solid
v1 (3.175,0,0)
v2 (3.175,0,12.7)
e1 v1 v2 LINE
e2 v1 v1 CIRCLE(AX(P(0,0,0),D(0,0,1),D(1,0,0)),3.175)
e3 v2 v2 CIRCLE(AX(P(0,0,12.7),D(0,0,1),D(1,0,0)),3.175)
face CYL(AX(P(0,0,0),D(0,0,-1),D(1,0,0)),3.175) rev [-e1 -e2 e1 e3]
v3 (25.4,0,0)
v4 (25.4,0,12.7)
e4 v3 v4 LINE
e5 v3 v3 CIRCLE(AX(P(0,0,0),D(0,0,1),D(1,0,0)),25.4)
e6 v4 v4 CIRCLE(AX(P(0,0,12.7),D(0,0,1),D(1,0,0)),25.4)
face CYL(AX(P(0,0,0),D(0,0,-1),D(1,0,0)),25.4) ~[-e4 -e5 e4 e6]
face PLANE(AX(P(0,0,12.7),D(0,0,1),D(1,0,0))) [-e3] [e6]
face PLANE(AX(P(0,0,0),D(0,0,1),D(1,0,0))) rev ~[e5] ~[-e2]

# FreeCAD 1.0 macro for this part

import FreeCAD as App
import Part
import Sketcher
from FreeCAD import Vector
Q = App.Units.Quantity

doc = App.newDocument("Part")
params = doc.addObject("Spreadsheet::Sheet", "Params")
for row, (alias, value) in enumerate([
    ("sketch1_diameter", "2 in"),
    ("sketch1_diameter2", "0.25 in"),
    ("pad1_length", "0.5 in"),
], start=1):
    params.set(f"A{row}", alias)
    params.set(f"B{row}", "=" + value)
    params.setAlias(f"B{row}", alias)

body = doc.addObject("PartDesign::Body", "Body")

# Sketch on XY plane
sketch1 = body.newObject("Sketcher::SketchObject", "Sketch")
sketch1.AttachmentSupport = (doc.getObject("XY_Plane"), [""])
sketch1.MapMode = "FlatFace"
sketch1.addGeometry(Part.Circle(Vector(0, 0, 0), Vector(0, 0, 1), 25.4), False)
sketch1.addGeometry(Part.Circle(Vector(0, 0, 0), Vector(0, 0, 1), 3.2), False)
sketch1.addConstraint(Sketcher.Constraint("Coincident", 0, 3, -1, 1))
sketch1.addConstraint(Sketcher.Constraint("Coincident", 1, 3, -1, 1))
sketch1.addConstraint(Sketcher.Constraint("Diameter", 0, Q("2 in")))
sketch1.addConstraint(Sketcher.Constraint("Diameter", 1, Q("0.25 in")))
sketch1.setExpression("Constraints[2]", "Params.sketch1_diameter")
sketch1.setExpression("Constraints[3]", "Params.sketch1_diameter2")
pad1 = body.newObject("PartDesign::Pad", "Pad")
pad1.Profile = sketch1
pad1.setExpression("Length", "Params.pad1_length")

doc.recompute()
